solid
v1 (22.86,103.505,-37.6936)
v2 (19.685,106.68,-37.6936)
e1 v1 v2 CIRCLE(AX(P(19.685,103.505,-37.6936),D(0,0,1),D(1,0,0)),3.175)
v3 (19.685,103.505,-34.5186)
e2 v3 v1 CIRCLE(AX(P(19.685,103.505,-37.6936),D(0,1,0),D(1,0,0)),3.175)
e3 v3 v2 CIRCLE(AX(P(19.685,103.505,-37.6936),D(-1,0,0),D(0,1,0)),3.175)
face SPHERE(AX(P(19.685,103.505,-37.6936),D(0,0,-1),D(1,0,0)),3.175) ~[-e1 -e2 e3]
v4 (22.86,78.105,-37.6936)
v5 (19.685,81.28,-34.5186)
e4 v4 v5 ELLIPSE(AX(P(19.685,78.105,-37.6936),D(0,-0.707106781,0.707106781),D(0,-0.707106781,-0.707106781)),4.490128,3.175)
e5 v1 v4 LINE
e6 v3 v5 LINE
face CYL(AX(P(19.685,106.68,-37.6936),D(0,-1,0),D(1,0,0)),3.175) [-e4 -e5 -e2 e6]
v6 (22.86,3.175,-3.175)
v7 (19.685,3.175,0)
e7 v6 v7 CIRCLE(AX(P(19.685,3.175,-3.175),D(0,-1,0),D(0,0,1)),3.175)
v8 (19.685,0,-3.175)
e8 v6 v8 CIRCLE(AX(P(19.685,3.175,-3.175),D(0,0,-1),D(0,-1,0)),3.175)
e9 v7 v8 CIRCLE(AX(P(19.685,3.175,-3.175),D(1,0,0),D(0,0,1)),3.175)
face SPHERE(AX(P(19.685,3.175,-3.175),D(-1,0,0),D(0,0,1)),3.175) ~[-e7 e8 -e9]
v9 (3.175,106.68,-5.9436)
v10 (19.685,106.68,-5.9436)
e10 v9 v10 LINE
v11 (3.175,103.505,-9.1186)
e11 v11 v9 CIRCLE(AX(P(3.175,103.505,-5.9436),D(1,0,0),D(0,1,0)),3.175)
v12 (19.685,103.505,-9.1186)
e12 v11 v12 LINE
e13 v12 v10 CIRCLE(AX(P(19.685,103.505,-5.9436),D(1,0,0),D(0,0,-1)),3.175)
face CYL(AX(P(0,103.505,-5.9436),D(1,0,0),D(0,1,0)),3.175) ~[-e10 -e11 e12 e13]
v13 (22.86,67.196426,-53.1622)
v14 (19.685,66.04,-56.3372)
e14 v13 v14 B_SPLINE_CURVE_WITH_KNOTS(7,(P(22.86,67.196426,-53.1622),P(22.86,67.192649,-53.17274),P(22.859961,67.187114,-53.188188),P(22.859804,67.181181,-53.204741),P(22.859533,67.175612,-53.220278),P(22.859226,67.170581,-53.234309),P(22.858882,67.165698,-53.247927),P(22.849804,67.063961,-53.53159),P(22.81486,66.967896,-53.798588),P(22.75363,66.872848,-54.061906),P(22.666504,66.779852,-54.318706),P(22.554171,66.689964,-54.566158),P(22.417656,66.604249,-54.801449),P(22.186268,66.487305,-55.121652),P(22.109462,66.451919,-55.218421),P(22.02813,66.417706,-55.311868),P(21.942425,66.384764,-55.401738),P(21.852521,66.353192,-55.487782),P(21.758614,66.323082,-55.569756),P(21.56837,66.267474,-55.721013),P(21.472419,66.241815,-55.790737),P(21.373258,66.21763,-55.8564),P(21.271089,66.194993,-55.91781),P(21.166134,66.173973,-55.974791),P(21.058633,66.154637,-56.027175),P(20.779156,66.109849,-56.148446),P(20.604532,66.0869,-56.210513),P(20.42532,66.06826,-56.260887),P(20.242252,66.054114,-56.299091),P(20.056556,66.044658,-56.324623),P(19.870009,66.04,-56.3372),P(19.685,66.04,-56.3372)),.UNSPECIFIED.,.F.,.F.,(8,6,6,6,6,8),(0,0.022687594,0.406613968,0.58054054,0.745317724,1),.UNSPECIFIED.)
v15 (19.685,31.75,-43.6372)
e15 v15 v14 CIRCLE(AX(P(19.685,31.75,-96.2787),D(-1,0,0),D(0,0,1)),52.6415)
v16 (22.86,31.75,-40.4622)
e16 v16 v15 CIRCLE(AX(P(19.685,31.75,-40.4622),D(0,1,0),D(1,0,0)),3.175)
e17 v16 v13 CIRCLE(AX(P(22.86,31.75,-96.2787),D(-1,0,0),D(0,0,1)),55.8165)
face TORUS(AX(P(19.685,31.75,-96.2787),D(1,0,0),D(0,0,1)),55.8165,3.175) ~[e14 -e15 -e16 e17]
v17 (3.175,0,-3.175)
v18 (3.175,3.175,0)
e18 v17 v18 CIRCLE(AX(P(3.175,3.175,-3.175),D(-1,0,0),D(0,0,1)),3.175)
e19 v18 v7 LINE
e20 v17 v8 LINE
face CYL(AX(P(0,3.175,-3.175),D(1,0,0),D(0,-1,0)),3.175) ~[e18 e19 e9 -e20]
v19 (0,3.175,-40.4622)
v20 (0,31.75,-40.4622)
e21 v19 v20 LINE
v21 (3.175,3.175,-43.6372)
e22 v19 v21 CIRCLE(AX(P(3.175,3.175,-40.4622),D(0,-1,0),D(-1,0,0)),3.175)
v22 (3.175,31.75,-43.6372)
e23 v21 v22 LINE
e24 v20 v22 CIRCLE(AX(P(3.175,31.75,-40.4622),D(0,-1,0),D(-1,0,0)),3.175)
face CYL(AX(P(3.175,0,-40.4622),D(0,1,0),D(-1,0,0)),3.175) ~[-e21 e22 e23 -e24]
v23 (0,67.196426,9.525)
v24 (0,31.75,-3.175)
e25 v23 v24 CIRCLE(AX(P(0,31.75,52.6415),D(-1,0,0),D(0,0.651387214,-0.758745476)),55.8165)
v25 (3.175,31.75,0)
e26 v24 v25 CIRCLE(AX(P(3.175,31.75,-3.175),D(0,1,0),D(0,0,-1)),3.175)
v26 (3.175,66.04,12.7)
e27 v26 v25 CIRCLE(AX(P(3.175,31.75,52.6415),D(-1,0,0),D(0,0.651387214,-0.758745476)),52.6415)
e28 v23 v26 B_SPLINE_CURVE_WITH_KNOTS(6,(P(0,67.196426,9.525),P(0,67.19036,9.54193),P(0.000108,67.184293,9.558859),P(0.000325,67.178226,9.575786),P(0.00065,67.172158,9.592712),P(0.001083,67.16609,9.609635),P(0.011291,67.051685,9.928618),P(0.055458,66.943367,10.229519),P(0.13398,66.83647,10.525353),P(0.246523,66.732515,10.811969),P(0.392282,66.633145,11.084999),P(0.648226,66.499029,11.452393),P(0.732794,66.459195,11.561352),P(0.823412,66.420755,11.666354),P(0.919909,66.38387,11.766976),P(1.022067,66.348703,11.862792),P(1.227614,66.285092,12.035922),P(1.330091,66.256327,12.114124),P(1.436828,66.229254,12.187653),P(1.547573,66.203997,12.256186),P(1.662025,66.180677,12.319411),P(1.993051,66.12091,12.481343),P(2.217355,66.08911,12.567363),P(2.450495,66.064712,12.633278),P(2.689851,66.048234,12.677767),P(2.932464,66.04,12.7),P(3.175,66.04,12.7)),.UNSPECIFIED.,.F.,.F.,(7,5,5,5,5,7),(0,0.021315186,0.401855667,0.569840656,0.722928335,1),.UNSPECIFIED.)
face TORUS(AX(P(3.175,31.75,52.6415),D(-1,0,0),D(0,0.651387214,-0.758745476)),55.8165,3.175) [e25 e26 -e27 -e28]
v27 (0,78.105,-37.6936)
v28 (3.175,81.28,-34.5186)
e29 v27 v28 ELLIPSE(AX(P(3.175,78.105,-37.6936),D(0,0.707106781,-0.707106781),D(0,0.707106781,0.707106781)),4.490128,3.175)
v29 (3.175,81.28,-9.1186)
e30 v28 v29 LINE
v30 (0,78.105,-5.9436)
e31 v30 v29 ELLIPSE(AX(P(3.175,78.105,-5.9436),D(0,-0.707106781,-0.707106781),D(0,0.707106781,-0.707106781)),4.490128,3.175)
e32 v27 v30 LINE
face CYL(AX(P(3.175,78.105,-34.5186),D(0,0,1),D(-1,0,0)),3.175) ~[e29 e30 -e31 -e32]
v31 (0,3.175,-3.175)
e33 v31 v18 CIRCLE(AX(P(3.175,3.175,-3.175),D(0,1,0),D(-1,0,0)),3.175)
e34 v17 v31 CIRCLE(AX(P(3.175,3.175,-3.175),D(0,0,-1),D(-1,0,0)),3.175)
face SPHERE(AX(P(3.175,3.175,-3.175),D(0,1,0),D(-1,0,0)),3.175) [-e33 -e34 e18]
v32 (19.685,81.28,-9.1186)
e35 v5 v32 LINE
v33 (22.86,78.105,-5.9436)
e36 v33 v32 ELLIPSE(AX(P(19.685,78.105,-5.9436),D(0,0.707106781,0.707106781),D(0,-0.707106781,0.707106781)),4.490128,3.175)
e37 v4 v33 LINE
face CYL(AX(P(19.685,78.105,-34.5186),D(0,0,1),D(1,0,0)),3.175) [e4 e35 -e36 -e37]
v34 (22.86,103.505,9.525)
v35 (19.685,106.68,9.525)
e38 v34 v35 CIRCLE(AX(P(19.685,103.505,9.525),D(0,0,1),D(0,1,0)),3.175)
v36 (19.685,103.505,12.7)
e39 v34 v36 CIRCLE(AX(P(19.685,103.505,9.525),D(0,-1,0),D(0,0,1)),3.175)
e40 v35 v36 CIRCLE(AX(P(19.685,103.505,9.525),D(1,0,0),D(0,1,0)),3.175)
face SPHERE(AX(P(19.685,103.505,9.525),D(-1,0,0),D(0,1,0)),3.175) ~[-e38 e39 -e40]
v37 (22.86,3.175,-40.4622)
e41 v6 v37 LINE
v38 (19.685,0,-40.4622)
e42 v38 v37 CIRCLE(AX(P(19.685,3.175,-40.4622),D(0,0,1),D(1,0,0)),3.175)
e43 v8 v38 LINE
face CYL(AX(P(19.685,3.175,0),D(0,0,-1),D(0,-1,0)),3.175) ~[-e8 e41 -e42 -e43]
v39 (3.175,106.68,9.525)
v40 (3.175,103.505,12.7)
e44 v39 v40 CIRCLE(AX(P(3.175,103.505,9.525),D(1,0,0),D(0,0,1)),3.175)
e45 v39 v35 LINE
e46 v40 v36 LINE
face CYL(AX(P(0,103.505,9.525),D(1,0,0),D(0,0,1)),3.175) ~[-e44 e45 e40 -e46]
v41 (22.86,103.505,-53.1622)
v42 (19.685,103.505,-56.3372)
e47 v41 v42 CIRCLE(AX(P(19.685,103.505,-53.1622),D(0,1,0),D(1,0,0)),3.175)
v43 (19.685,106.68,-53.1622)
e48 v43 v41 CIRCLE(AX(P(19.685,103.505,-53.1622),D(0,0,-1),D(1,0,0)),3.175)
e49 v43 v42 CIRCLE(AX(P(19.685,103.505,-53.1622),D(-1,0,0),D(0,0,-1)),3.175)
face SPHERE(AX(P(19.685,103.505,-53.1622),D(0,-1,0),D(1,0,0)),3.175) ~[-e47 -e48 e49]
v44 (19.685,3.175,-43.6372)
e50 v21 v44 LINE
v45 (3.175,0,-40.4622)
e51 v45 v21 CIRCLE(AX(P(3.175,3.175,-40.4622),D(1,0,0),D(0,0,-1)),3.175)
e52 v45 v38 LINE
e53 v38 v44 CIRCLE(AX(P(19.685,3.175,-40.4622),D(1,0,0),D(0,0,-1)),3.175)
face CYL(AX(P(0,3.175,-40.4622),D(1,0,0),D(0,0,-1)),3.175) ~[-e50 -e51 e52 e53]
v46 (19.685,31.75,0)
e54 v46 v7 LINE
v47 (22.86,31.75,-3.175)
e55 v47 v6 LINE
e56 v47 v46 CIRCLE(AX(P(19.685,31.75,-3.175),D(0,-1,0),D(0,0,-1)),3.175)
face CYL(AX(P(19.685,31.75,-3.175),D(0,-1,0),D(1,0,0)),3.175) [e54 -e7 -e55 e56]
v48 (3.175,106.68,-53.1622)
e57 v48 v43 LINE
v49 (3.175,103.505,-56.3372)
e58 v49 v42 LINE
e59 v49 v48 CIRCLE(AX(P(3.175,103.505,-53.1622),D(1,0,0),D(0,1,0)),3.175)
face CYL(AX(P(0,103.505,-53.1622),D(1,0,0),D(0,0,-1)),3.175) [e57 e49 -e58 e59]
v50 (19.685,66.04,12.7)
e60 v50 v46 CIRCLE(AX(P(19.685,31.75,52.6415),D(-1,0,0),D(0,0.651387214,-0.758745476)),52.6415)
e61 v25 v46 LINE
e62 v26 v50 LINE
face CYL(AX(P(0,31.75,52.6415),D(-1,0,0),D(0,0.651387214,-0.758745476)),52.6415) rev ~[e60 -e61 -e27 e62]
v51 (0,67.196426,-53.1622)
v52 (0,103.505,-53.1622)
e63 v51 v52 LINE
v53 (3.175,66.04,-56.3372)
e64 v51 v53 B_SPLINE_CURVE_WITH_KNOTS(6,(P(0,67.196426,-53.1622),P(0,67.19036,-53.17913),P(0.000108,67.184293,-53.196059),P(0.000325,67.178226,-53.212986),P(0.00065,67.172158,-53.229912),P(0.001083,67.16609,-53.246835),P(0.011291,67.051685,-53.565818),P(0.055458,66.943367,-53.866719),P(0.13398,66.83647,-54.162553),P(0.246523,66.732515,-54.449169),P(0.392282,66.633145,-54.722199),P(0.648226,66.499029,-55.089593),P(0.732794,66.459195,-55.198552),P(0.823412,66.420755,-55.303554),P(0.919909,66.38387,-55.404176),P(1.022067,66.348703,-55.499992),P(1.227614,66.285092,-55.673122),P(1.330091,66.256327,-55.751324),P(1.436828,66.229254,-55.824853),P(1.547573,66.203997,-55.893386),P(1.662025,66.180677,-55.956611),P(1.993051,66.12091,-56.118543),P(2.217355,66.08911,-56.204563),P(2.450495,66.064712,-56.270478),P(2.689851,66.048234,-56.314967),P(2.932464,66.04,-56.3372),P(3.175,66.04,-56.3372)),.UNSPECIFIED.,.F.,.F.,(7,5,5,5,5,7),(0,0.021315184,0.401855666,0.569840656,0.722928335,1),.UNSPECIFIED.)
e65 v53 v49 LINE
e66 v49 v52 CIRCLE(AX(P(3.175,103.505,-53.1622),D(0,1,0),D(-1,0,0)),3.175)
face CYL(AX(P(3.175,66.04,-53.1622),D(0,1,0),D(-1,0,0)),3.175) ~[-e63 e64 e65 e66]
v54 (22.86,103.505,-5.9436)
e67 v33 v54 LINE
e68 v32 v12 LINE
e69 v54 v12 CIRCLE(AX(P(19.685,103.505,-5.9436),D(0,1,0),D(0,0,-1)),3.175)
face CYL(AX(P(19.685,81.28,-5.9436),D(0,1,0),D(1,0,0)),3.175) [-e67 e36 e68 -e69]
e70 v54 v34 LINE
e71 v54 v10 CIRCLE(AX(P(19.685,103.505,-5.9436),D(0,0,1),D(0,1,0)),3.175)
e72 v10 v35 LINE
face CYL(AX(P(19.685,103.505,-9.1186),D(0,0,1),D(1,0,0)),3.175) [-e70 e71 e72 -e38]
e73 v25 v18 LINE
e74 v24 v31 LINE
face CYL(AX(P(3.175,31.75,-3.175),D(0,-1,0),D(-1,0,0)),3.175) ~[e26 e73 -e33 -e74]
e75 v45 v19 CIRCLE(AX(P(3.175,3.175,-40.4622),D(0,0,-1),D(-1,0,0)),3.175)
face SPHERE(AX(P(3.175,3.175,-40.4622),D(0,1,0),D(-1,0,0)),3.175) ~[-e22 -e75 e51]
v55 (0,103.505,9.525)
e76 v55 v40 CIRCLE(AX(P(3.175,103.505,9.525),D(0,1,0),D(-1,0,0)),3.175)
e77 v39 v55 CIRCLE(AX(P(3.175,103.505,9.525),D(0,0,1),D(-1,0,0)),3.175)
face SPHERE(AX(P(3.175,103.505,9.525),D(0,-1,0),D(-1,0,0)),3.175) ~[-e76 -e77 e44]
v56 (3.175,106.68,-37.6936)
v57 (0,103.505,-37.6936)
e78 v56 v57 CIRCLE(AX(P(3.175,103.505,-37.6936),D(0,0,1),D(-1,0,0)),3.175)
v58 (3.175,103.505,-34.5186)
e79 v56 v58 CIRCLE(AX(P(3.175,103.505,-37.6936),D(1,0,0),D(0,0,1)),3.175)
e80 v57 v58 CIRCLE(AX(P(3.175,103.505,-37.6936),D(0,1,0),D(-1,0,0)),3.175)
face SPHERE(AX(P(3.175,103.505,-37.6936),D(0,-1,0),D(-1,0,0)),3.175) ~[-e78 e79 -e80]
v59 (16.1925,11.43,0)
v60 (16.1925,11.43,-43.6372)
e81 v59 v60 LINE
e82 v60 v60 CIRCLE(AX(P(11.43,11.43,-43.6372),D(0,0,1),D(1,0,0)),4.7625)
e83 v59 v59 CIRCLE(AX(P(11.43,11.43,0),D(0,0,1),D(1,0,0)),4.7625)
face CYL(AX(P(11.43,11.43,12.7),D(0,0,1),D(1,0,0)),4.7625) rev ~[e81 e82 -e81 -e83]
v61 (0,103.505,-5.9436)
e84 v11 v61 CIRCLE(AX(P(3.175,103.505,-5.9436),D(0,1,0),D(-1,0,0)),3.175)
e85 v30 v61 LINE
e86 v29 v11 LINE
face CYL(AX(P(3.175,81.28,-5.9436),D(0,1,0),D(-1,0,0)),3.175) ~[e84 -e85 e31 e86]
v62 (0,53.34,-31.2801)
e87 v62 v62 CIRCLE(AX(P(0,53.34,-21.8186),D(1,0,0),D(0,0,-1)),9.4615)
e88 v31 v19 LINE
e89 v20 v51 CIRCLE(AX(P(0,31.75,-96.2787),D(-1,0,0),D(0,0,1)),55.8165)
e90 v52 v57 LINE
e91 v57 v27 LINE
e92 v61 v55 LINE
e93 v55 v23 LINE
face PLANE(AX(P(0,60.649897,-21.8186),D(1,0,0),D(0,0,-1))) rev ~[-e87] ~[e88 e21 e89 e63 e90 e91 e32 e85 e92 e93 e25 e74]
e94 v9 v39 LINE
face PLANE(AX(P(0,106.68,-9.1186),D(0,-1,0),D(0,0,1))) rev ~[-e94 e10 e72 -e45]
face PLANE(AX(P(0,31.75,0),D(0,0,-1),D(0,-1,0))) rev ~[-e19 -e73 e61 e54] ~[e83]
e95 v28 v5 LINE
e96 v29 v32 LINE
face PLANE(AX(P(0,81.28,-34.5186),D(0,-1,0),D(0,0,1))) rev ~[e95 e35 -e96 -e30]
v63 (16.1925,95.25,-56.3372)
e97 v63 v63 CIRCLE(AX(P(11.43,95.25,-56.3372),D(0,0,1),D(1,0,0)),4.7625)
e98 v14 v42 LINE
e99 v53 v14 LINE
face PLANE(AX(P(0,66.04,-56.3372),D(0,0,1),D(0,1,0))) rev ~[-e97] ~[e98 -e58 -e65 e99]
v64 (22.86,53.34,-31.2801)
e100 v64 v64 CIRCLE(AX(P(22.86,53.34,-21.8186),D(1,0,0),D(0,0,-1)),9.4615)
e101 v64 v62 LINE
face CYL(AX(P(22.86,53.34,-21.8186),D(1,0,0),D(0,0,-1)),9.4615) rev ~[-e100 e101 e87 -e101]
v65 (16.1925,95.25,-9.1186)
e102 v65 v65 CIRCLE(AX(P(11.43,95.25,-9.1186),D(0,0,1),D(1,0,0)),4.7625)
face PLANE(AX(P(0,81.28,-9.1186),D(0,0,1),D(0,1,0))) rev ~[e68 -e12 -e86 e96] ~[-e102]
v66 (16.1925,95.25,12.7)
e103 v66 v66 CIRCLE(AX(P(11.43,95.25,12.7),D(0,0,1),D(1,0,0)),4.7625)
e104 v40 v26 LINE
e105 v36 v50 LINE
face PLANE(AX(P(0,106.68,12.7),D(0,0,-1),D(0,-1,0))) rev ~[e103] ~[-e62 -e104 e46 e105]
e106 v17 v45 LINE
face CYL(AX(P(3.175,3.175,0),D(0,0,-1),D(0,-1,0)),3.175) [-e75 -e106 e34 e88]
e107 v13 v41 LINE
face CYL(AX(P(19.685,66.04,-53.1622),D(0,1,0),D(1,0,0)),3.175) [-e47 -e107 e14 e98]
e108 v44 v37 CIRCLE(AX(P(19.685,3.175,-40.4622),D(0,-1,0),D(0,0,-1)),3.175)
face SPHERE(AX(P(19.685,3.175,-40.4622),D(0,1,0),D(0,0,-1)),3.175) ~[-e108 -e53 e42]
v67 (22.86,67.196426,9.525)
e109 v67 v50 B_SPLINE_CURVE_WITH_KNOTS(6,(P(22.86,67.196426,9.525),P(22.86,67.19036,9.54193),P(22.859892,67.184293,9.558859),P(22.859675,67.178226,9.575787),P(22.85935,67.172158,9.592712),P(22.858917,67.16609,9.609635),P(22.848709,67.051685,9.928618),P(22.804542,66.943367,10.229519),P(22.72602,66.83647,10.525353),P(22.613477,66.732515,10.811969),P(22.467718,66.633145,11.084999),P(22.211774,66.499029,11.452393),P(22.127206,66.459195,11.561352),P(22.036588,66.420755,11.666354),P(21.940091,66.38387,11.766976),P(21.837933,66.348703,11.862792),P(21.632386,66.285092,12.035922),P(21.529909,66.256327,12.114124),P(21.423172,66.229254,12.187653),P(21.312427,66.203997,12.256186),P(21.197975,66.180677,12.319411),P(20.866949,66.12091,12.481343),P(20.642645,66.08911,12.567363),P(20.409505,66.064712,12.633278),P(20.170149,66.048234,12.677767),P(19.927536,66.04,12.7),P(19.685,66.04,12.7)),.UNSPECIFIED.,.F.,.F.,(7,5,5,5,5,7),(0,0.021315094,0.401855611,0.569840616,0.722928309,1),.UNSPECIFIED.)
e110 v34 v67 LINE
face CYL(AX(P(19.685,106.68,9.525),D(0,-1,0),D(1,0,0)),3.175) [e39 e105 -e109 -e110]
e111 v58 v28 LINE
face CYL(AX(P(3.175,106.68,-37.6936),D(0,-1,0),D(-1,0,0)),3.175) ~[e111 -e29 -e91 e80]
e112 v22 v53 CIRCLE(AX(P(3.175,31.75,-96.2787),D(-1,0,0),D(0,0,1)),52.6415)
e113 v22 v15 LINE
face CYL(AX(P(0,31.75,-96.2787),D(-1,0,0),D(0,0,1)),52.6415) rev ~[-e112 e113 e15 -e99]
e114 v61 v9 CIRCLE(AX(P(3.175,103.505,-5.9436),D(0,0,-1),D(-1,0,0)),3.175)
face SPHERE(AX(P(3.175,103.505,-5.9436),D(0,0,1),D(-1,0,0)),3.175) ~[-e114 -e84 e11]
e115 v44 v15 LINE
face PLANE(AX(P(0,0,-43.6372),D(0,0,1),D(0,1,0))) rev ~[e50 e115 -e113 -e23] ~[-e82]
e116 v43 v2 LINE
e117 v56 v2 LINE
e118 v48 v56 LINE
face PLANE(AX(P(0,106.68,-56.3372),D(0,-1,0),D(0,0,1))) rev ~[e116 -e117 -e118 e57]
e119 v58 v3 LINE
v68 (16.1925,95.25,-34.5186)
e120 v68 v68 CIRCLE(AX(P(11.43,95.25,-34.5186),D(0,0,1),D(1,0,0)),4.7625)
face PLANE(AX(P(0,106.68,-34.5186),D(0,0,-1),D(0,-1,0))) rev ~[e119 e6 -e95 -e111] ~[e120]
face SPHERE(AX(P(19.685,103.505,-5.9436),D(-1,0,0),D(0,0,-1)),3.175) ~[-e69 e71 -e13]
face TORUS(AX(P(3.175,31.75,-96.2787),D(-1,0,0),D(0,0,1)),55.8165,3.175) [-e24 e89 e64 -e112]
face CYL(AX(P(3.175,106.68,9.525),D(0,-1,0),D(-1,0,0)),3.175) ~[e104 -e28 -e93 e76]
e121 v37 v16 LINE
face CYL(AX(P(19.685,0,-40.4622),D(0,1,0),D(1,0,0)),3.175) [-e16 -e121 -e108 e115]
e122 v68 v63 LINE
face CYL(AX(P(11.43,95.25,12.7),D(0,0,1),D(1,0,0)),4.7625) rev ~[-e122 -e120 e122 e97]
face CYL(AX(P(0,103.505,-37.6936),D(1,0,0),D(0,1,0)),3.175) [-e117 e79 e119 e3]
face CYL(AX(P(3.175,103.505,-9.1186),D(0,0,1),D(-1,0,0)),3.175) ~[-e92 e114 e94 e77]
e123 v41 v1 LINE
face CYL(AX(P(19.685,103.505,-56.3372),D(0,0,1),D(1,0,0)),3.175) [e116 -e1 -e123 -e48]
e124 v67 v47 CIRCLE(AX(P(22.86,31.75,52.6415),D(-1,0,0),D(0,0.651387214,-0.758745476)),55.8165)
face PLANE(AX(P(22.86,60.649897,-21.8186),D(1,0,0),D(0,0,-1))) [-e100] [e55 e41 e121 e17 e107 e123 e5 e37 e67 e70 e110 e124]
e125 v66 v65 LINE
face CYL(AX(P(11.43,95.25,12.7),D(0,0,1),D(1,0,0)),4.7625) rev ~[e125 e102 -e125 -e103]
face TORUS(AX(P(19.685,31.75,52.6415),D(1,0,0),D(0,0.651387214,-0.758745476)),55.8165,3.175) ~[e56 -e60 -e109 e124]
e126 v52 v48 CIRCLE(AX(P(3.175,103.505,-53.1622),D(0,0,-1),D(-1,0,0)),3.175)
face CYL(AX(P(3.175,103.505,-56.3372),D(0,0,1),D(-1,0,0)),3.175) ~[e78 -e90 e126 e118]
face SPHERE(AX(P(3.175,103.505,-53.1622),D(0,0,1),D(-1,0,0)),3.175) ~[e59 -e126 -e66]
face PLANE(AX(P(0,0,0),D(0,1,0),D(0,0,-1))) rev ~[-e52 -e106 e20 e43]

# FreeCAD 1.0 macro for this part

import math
import FreeCAD as App
import Part
import Sketcher
from FreeCAD import Vector
Q = App.Units.Quantity


def edges_at(feature, points):
    """Names of the edges that pass closest to the given points."""
    edges = feature.Shape.Edges
    near = lambda p: min(range(len(edges)), key=lambda i: edges[i].distToShape(Part.Vertex(*p))[0])
    return sorted({f"Edge{near(p) + 1}" for p in points})

doc = App.newDocument("Part")
body = doc.addObject("PartDesign::Body", "Body")

sketch1 = body.newObject("Sketcher::SketchObject", "Sketch")
sketch1.AttachmentSupport = (doc.getObject("YZ_Plane"), [""])
sketch1.MapMode = "FlatFace"
sketch1.addGeometry([
    Part.LineSegment(Vector(0, -44, 0), Vector(32, -44, 0)),
    Part.ArcOfCircle(Part.Circle(Vector(32, -96, 0), Vector(0, 0, 1), 53), math.radians(49), math.radians(90)),
    Part.LineSegment(Vector(66, -56, 0), Vector(107, -56, 0)),
    Part.LineSegment(Vector(107, -56, 0), Vector(107, -35, 0)),
    Part.LineSegment(Vector(107, -35, 0), Vector(81, -35, 0)),
    Part.LineSegment(Vector(81, -35, 0), Vector(81, -9, 0)),
    Part.LineSegment(Vector(81, -9, 0), Vector(107, -9, 0)),
    Part.LineSegment(Vector(107, -9, 0), Vector(107, 13, 0)),
    Part.LineSegment(Vector(107, 13, 0), Vector(66, 13, 0)),
    Part.ArcOfCircle(Part.Circle(Vector(32, 53, 0), Vector(0, 0, 1), 53), math.radians(-90), math.radians(-49)),
    Part.LineSegment(Vector(32, 0, 0), Vector(0, 0, 0)),
    Part.LineSegment(Vector(0, 0, 0), Vector(0, -44, 0)),
], False)
sketch1.addConstraint([
    Sketcher.Constraint("Tangent", 0, 2, 1, 2),
    Sketcher.Constraint("Coincident", 1, 1, 2, 1),
    Sketcher.Constraint("Coincident", 2, 2, 3, 1),
    Sketcher.Constraint("Coincident", 3, 2, 4, 1),
    Sketcher.Constraint("Coincident", 4, 2, 5, 1),
    Sketcher.Constraint("Coincident", 5, 2, 6, 1),
    Sketcher.Constraint("Coincident", 6, 2, 7, 1),
    Sketcher.Constraint("Coincident", 7, 2, 8, 1),
    Sketcher.Constraint("Coincident", 8, 2, 9, 2),
    Sketcher.Constraint("Tangent", 9, 1, 10, 1),
    Sketcher.Constraint("Coincident", 10, 2, 11, 1),
    Sketcher.Constraint("Coincident", 11, 2, 0, 1),
    Sketcher.Constraint("Horizontal", 0),
    Sketcher.Constraint("Horizontal", 2),
    Sketcher.Constraint("Vertical", 3),
    Sketcher.Constraint("Horizontal", 4),
    Sketcher.Constraint("Vertical", 5),
    Sketcher.Constraint("Horizontal", 6),
    Sketcher.Constraint("Vertical", 7),
    Sketcher.Constraint("Horizontal", 8),
    Sketcher.Constraint("Horizontal", 10),
    Sketcher.Constraint("Vertical", 11),
    Sketcher.Constraint("Coincident", 10, 2, -1, 1),
    Sketcher.Constraint("Equal", 1, 9),
    Sketcher.Constraint("Vertical", 1, 3, 9, 3),
    Sketcher.Constraint("Vertical", 3, 2, 6, 2),
    Sketcher.Constraint("Vertical", 1, 1, 8, 2),
    Sketcher.Constraint("Equal", 6, 5),
    Sketcher.Constraint("Equal", 3, 7),
    Sketcher.Constraint("DistanceX", 4, 2, 4, 1, Q("1 in")),
    Sketcher.Constraint("DistanceX", 2, 1, 2, 2, Q("1.6 in")),
    Sketcher.Constraint("DistanceX", 0, 1, 0, 2, Q("1.25 in")),
    Sketcher.Constraint("DistanceX", -1, 1, 1, 1, Q("2.6 in")),
    Sketcher.Constraint("DistanceY", -1, 1, 7, 2, Q("0.5 in")),
    Sketcher.Constraint("DistanceY", 3, 1, 3, 2, Q("0.859 in")),
])
pad1 = body.newObject("PartDesign::Pad", "Pad")
pad1.Profile = sketch1
pad1.Length = Q("0.9 in")

sketch2 = body.newObject("Sketcher::SketchObject", "Sketch001")
sketch2.AttachmentSupport = (doc.getObject("XY_Plane"), [""])
sketch2.MapMode = "FlatFace"
sketch2.AttachmentOffset = App.Placement(Vector(0, 0, 0.5 * 25.4), App.Rotation())
sketch2.addGeometry([
    Part.Circle(Vector(11.4, 95.2, 0), Vector(0, 0, 1), 4.8),
    Part.Circle(Vector(11.4, 11.4, 0), Vector(0, 0, 1), 4.8),
], False)
sketch2.addConstraint([
    Sketcher.Constraint("Equal", 0, 1),
    Sketcher.Constraint("Vertical", 0, 3, 1, 3),
    Sketcher.Constraint("Diameter", 0, Q("0.375 in")),
    Sketcher.Constraint("DistanceY", 1, 3, 0, 3, Q("3.3 in")),
    Sketcher.Constraint("DistanceX", -1, 1, 0, 3, Q("0.45 in")),
    Sketcher.Constraint("DistanceY", -1, 1, 0, 3, Q("3.75 in")),
])
pocket1 = body.newObject("PartDesign::Pocket", "Pocket")
pocket1.Profile = sketch2
pocket1.Type = "ThroughAll"

sketch3 = body.newObject("Sketcher::SketchObject", "Sketch002")
sketch3.AttachmentSupport = (doc.getObject("YZ_Plane"), [""])
sketch3.MapMode = "FlatFace"
sketch3.AttachmentOffset = App.Placement(Vector(0, 0, 0.9 * 25.4), App.Rotation())
sketch3.addGeometry(Part.Circle(Vector(53, -22, 0), Vector(0, 0, 1), 9), False)
sketch3.addConstraint([
    Sketcher.Constraint("Diameter", 0, Q("0.745 in")),
    Sketcher.Constraint("DistanceX", -1, 1, 0, 3, Q("2.1 in")),
    Sketcher.Constraint("DistanceY", 0, 3, -1, 1, Q("0.859 in")),
])
pocket2 = body.newObject("PartDesign::Pocket", "Pocket001")
pocket2.Profile = sketch3
pocket2.Type = "ThroughAll"
doc.recompute()

fillet = body.newObject("PartDesign::Fillet", "Fillet")
fillet.Base = (pocket2, edges_at(pocket2, [
    (22.86, 50.033, -46.914),
    (0, 15.875, 0),
    (0, 50.033, 3.277),
    (0, 86.36, 12.7),
    (0, 106.68, 1.791),
    (0, 93.98, -9.119),
    (0, 81.28, -21.819),
    (22.86, 86.36, -56.337),
    (0, 93.98, -34.519),
    (0, 106.68, -45.428),
    (0, 86.36, -56.337),
    (0, 50.033, -46.914),
    (0, 15.875, -43.637),
    (0, 0, -21.819),
    (22.86, 106.68, -45.428),
    (22.86, 93.98, -34.519),
    (11.43, 0, 0),
    (11.43, 106.68, 12.7),
    (11.43, 106.68, -9.119),
    (11.43, 106.68, -34.519),
    (11.43, 106.68, -56.337),
    (11.43, 0, -43.637),
    (22.86, 81.28, -21.819),
    (22.86, 93.98, -9.119),
    (22.86, 106.68, 1.791),
    (22.86, 86.36, 12.7),
    (22.86, 50.033, 3.277),
    (22.86, 15.875, 0),
    (22.86, 0, -21.819),
    (22.86, 15.875, -43.637),
]))
fillet.Radius = Q("0.125 in")

doc.recompute()
